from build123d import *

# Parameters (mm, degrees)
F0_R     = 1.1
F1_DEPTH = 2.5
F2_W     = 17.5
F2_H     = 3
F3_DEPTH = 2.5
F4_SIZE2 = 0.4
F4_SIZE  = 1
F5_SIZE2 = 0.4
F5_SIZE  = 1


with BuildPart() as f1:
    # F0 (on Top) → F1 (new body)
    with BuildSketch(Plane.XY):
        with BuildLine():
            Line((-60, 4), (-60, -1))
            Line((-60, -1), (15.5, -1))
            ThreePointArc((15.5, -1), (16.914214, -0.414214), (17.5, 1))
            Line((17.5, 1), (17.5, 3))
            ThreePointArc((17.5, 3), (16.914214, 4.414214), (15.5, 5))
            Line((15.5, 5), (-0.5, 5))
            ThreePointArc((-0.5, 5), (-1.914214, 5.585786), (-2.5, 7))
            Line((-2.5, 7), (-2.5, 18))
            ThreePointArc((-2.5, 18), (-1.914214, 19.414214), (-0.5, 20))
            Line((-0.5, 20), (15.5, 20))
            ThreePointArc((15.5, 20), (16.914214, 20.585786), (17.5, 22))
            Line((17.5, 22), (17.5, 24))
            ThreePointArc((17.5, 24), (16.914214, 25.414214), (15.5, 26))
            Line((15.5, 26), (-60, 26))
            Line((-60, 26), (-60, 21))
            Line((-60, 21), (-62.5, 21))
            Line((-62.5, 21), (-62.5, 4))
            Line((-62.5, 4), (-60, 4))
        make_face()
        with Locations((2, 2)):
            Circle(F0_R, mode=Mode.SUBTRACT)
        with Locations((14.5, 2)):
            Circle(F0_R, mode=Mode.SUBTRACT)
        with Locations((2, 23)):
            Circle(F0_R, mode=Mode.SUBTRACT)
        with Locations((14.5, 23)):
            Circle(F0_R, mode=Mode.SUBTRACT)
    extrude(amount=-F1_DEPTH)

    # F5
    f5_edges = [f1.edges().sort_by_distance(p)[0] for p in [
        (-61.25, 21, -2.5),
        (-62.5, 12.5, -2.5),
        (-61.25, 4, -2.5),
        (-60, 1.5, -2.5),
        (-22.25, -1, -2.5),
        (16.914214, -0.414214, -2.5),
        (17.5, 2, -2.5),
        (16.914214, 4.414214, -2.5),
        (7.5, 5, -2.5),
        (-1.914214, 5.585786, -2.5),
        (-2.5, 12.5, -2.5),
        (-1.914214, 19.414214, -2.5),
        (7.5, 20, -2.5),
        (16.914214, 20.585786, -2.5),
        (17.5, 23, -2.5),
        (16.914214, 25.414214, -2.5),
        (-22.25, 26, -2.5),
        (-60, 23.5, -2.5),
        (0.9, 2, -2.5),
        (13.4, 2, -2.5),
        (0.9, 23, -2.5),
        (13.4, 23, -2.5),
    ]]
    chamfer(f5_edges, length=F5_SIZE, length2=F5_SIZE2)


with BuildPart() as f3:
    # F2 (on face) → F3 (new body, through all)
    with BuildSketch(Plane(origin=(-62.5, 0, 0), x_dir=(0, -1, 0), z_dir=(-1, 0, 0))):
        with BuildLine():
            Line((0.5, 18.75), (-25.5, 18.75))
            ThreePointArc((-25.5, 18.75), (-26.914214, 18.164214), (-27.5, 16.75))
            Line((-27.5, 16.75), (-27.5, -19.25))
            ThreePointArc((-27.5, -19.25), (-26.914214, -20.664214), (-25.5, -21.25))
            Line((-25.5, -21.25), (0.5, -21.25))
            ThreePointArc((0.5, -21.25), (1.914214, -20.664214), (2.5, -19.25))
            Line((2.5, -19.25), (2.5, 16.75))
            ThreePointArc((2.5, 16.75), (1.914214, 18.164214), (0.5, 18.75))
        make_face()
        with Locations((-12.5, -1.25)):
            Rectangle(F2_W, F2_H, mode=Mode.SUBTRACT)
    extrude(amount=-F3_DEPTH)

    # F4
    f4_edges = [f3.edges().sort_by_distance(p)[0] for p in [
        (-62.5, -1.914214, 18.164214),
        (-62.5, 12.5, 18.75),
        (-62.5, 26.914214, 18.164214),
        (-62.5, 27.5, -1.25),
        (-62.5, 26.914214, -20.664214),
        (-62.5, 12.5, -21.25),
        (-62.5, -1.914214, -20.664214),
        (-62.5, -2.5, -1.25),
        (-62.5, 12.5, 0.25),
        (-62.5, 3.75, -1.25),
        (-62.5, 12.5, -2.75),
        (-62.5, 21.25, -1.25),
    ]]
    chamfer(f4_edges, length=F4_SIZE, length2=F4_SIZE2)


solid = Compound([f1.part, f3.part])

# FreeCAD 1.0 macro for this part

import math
import FreeCAD as App
import Part
import Sketcher
Q = App.Units.Quantity


def edges_at(feature, points):
    """Names of the edges that pass closest to the given points."""
    edges = feature.Shape.Edges
    near = lambda p: min(range(len(edges)), key=lambda i: edges[i].distToShape(Part.Vertex(*p))[0])
    return sorted({f"Edge{near(p) + 1}" for p in points})


def add_polygon(sketch, points):
    """Adds a closed chain of lines whose ends are joined by coincident constraints."""
    first, n = sketch.GeometryCount, len(points)
    for a, b in zip(points, points[1:] + points[:1]):
        sketch.addGeometry(Part.LineSegment(App.Vector(*a, 0), App.Vector(*b, 0)), False)
    for i in range(n):
        sketch.addConstraint(Sketcher.Constraint("Coincident", first + i, 2, first + (i + 1) % n, 1))

doc = App.newDocument("Part")
params = doc.addObject("Spreadsheet::Sheet", "Params")
for row, (alias, value) in enumerate([
    ("sketch1_radius", "1.999999 mm"),
    ("sketch1_diameter", "2.2 mm"),
    ("sketch1_width", "16 mm"),
    ("sketch1_height", "5 mm"),
    ("sketch1_height2", "2 mm"),
    ("pad1_length", "2.5 mm"),
    ("chamfer_size", "1 mm"),
    ("chamfer_size2", "0.4 mm"),
    ("sketch2_radius", "1.999999 mm"),
    ("sketch2_width", "26 mm"),
    ("sketch2_height", "36 mm"),
    ("sketch2_height2", "3 mm"),
    ("sketch2_width2", "17.5 mm"),
    ("pad2_length", "2.5 mm"),
    ("chamfer2_size", "1 mm"),
    ("chamfer2_size2", "0.4 mm"),
], start=1):
    params.set(f"A{row}", alias)
    params.set(f"B{row}", "=" + value)
    params.setAlias(f"B{row}", alias)

body = doc.addObject("PartDesign::Body", "Body")

# Sketch on XY plane
sketch1 = body.newObject("Sketcher::SketchObject", "Sketch")
sketch1.AttachmentSupport = (doc.getObject("XY_Plane"), [""])
sketch1.MapMode = "FlatFace"
sketch1.addGeometry(Part.LineSegment(App.Vector(-60, 4, 0), App.Vector(-60, -1, 0)), False)
sketch1.addGeometry(Part.LineSegment(App.Vector(-60, -1, 0), App.Vector(15.5, -1, 0)), False)
sketch1.addGeometry(Part.ArcOfCircle(Part.Circle(App.Vector(15.5, 1, 0), App.Vector(0, 0, 1), 2), math.radians(-90), math.radians(0)), False)
sketch1.addGeometry(Part.LineSegment(App.Vector(17.5, 1, 0), App.Vector(17.5, 3, 0)), False)
sketch1.addGeometry(Part.ArcOfCircle(Part.Circle(App.Vector(15.5, 3, 0), App.Vector(0, 0, 1), 2), math.radians(0), math.radians(90)), False)
sketch1.addGeometry(Part.LineSegment(App.Vector(15.5, 5, 0), App.Vector(-0.5, 5, 0)), False)
sketch1.addGeometry(Part.ArcOfCircle(Part.Circle(App.Vector(-0.5, 7, 0), App.Vector(0, 0, 1), 2), math.radians(180), math.radians(270)), False)
sketch1.addGeometry(Part.LineSegment(App.Vector(-2.5, 7, 0), App.Vector(-2.5, 18, 0)), False)
sketch1.addGeometry(Part.ArcOfCircle(Part.Circle(App.Vector(-0.5, 18, 0), App.Vector(0, 0, 1), 2), math.radians(90), math.radians(180)), False)
sketch1.addGeometry(Part.LineSegment(App.Vector(-0.5, 20, 0), App.Vector(15.5, 20, 0)), False)
sketch1.addGeometry(Part.ArcOfCircle(Part.Circle(App.Vector(15.5, 22, 0), App.Vector(0, 0, 1), 2), math.radians(-90), math.radians(0)), False)
sketch1.addGeometry(Part.LineSegment(App.Vector(17.5, 22, 0), App.Vector(17.5, 24, 0)), False)
sketch1.addGeometry(Part.ArcOfCircle(Part.Circle(App.Vector(15.5, 24, 0), App.Vector(0, 0, 1), 2), math.radians(0), math.radians(90)), False)
sketch1.addGeometry(Part.LineSegment(App.Vector(15.5, 26, 0), App.Vector(-60, 26, 0)), False)
sketch1.addGeometry(Part.LineSegment(App.Vector(-60, 26, 0), App.Vector(-60, 21, 0)), False)
sketch1.addGeometry(Part.LineSegment(App.Vector(-60, 21, 0), App.Vector(-62.5, 21, 0)), False)
sketch1.addGeometry(Part.LineSegment(App.Vector(-62.5, 21, 0), App.Vector(-62.5, 4, 0)), False)
sketch1.addGeometry(Part.LineSegment(App.Vector(-62.5, 4, 0), App.Vector(-60, 4, 0)), False)
sketch1.addGeometry(Part.Circle(App.Vector(2, 2, 0), App.Vector(0, 0, 1), 1.1), False)
sketch1.addGeometry(Part.Circle(App.Vector(14.5, 2, 0), App.Vector(0, 0, 1), 1.1), False)
sketch1.addGeometry(Part.Circle(App.Vector(2, 23, 0), App.Vector(0, 0, 1), 1.1), False)
sketch1.addGeometry(Part.Circle(App.Vector(14.5, 23, 0), App.Vector(0, 0, 1), 1.1), False)
sketch1.addConstraint(Sketcher.Constraint("Coincident", 0, 2, 1, 1))
sketch1.addConstraint(Sketcher.Constraint("Tangent", 1, 2, 2, 1))
sketch1.addConstraint(Sketcher.Constraint("Tangent", 2, 2, 3, 1))
sketch1.addConstraint(Sketcher.Constraint("Tangent", 3, 2, 4, 1))
sketch1.addConstraint(Sketcher.Constraint("Tangent", 4, 2, 5, 1))
sketch1.addConstraint(Sketcher.Constraint("Tangent", 5, 2, 6, 2))
sketch1.addConstraint(Sketcher.Constraint("Tangent", 6, 1, 7, 1))
sketch1.addConstraint(Sketcher.Constraint("Tangent", 7, 2, 8, 2))
sketch1.addConstraint(Sketcher.Constraint("Tangent", 8, 1, 9, 1))
sketch1.addConstraint(Sketcher.Constraint("Tangent", 9, 2, 10, 1))
sketch1.addConstraint(Sketcher.Constraint("Tangent", 10, 2, 11, 1))
sketch1.addConstraint(Sketcher.Constraint("Tangent", 11, 2, 12, 1))
sketch1.addConstraint(Sketcher.Constraint("Tangent", 12, 2, 13, 1))
sketch1.addConstraint(Sketcher.Constraint("Coincident", 13, 2, 14, 1))
sketch1.addConstraint(Sketcher.Constraint("Coincident", 14, 2, 15, 1))
sketch1.addConstraint(Sketcher.Constraint("Coincident", 15, 2, 16, 1))
sketch1.addConstraint(Sketcher.Constraint("Coincident", 16, 2, 17, 1))
sketch1.addConstraint(Sketcher.Constraint("Coincident", 17, 2, 0, 1))
sketch1.addConstraint(Sketcher.Constraint("Vertical", 0))
sketch1.addConstraint(Sketcher.Constraint("Horizontal", 1))
sketch1.addConstraint(Sketcher.Constraint("Vertical", 3))
sketch1.addConstraint(Sketcher.Constraint("Horizontal", 5))
sketch1.addConstraint(Sketcher.Constraint("Vertical", 7))
sketch1.addConstraint(Sketcher.Constraint("Horizontal", 9))
sketch1.addConstraint(Sketcher.Constraint("Vertical", 11))
sketch1.addConstraint(Sketcher.Constraint("Horizontal", 13))
sketch1.addConstraint(Sketcher.Constraint("Vertical", 14))
sketch1.addConstraint(Sketcher.Constraint("Horizontal", 15))
sketch1.addConstraint(Sketcher.Constraint("Vertical", 16))
sketch1.addConstraint(Sketcher.Constraint("Horizontal", 17))
sketch1.addConstraint(Sketcher.Constraint("Equal", 2, 4))
sketch1.addConstraint(Sketcher.Constraint("Equal", 4, 6))
sketch1.addConstraint(Sketcher.Constraint("Equal", 6, 8))
sketch1.addConstraint(Sketcher.Constraint("Equal", 8, 10))
sketch1.addConstraint(Sketcher.Constraint("Equal", 10, 12))
sketch1.addConstraint(Sketcher.Constraint("Equal", 18, 19))
sketch1.addConstraint(Sketcher.Constraint("Equal", 19, 20))
sketch1.addConstraint(Sketcher.Constraint("Equal", 20, 21))
sketch1.addConstraint(Sketcher.Constraint("Horizontal", 18, 3, 19, 3))
sketch1.addConstraint(Sketcher.Constraint("Horizontal", 20, 3, 21, 3))
sketch1.addConstraint(Sketcher.Constraint("Vertical", 4, 3, 10, 3))
sketch1.addConstraint(Sketcher.Constraint("Vertical", 18, 3, 20, 3))
sketch1.addConstraint(Sketcher.Constraint("Vertical", 19, 3, 21, 3))
sketch1.addConstraint(Sketcher.Constraint("Vertical", 0, 2, 13, 2))
sketch1.addConstraint(Sketcher.Constraint("Equal", 3, 11))
sketch1.addConstraint(Sketcher.Constraint("Equal", 0, 14))
sketch1.addConstraint(Sketcher.Constraint("Radius", 2, Q("1.999999 mm")))
sketch1.addConstraint(Sketcher.Constraint("Diameter", 18, Q("2.2 mm")))
sketch1.addConstraint(Sketcher.Constraint("DistanceX", 5, 2, 5, 1, Q("16 mm")))
sketch1.addConstraint(Sketcher.Constraint("DistanceY", 0, 2, 0, 1, Q("5 mm")))
sketch1.addConstraint(Sketcher.Constraint("DistanceY", 3, 1, 3, 2, Q("2 mm")))
sketch1.addConstraint(Sketcher.Constraint("DistanceY", 7, 1, 7, 2, Q("11 mm")))
sketch1.addConstraint(Sketcher.Constraint("DistanceX", 1, 1, 1, 2, Q("75.5 mm")))
sketch1.addConstraint(Sketcher.Constraint("DistanceX", 15, 2, 15, 1, Q("2.5 mm")))
sketch1.addConstraint(Sketcher.Constraint("DistanceY", -1, 1, 2, 3, Q("0.999999 mm")))
sketch1.addConstraint(Sketcher.Constraint("DistanceX", -1, 1, 18, 3, Q("2 mm")))
sketch1.addConstraint(Sketcher.Constraint("DistanceY", -1, 1, 18, 3, Q("2 mm")))
sketch1.addConstraint(Sketcher.Constraint("DistanceY", -1, 1, 20, 3, Q("23 mm")))
sketch1.addConstraint(Sketcher.Constraint("DistanceX", 0, 2, -1, 1, Q("60 mm")))
sketch1.addConstraint(Sketcher.Constraint("DistanceX", 19, 3, 2, 3, Q("1.000001 mm")))
sketch1.setExpression("Constraints[46]", "Params.sketch1_radius")
sketch1.setExpression("Constraints[47]", "Params.sketch1_diameter")
sketch1.setExpression("Constraints[48]", "Params.sketch1_width")
sketch1.setExpression("Constraints[49]", "Params.sketch1_height")
sketch1.setExpression("Constraints[50]", "Params.sketch1_height2")
pad1 = body.newObject("PartDesign::Pad", "Pad")
pad1.Profile = sketch1
pad1.setExpression("Length", "Params.pad1_length")
pad1.Reversed = True
doc.recompute()

chamfer = body.newObject("PartDesign::Chamfer", "Chamfer")
chamfer.Base = (pad1, edges_at(pad1, [
    (-61.25, 21, -2.5),
    (-62.5, 12.5, -2.5),
    (-61.25, 4, -2.5),
    (-60, 1.5, -2.5),
    (-22.25, -1, -2.5),
    (16.914, -0.414, -2.5),
    (17.5, 2, -2.5),
    (16.914, 4.414, -2.5),
    (7.5, 5, -2.5),
    (-1.914, 5.586, -2.5),
    (-2.5, 12.5, -2.5),
    (-1.914, 19.414, -2.5),
    (7.5, 20, -2.5),
    (16.914, 20.586, -2.5),
    (17.5, 23, -2.5),
    (16.914, 25.414, -2.5),
    (-22.25, 26, -2.5),
    (-60, 23.5, -2.5),
    (0.9, 2, -2.5),
    (13.4, 2, -2.5),
    (0.9, 23, -2.5),
    (13.4, 23, -2.5),
]))
chamfer.ChamferType = "Two distances"
chamfer.setExpression("Size", "Params.chamfer_size")
chamfer.setExpression("Size2", "Params.chamfer_size2")
body2 = doc.addObject("PartDesign::Body", "Body001")

# Sketch on YZ plane
sketch2 = body2.newObject("Sketcher::SketchObject", "Sketch001")
sketch2.AttachmentSupport = (doc.getObject("YZ_Plane001"), [""])
sketch2.MapMode = "FlatFace"
sketch2.AttachmentOffset = App.Placement(App.Vector(0, 0, -62.5), App.Rotation())
sketch2.addGeometry(Part.LineSegment(App.Vector(-0.5, 18.8, 0), App.Vector(25.5, 18.8, 0)), False)  # 0
sketch2.addGeometry(Part.ArcOfCircle(Part.Circle(App.Vector(25.5, 16.8, 0), App.Vector(0, 0, 1), 2), math.radians(0), math.radians(90)), False)  # 1
sketch2.addGeometry(Part.LineSegment(App.Vector(27.5, 16.8, 0), App.Vector(27.5, -19.2, 0)), False)  # 2
sketch2.addGeometry(Part.ArcOfCircle(Part.Circle(App.Vector(25.5, -19.3, 0), App.Vector(0, 0, 1), 2), math.radians(-90), math.radians(0)), False)  # 3
sketch2.addGeometry(Part.LineSegment(App.Vector(25.5, -21.2, 0), App.Vector(-0.5, -21.2, 0)), False)  # 4
sketch2.addGeometry(Part.ArcOfCircle(Part.Circle(App.Vector(-0.5, -19.3, 0), App.Vector(0, 0, 1), 2), math.radians(180), math.radians(270)), False)  # 5
sketch2.addGeometry(Part.LineSegment(App.Vector(-2.5, -19.2, 0), App.Vector(-2.5, 16.8, 0)), False)  # 6
sketch2.addGeometry(Part.ArcOfCircle(Part.Circle(App.Vector(-0.5, 16.8, 0), App.Vector(0, 0, 1), 2), math.radians(90), math.radians(180)), False)  # 7
add_polygon(sketch2, [(3.8, -2.8), (21.2, -2.8), (21.2, 0.2), (3.8, 0.2)])  # lines 8-11
sketch2.addConstraint(Sketcher.Constraint("Tangent", 0, 2, 1, 2))
sketch2.addConstraint(Sketcher.Constraint("Tangent", 1, 1, 2, 1))
sketch2.addConstraint(Sketcher.Constraint("Tangent", 2, 2, 3, 2))
sketch2.addConstraint(Sketcher.Constraint("Tangent", 3, 1, 4, 1))
sketch2.addConstraint(Sketcher.Constraint("Tangent", 4, 2, 5, 2))
sketch2.addConstraint(Sketcher.Constraint("Tangent", 5, 1, 6, 1))
sketch2.addConstraint(Sketcher.Constraint("Tangent", 6, 2, 7, 2))
sketch2.addConstraint(Sketcher.Constraint("Tangent", 7, 1, 0, 1))
sketch2.addConstraint(Sketcher.Constraint("Horizontal", 0))
sketch2.addConstraint(Sketcher.Constraint("Vertical", 2))
sketch2.addConstraint(Sketcher.Constraint("Horizontal", 4))
sketch2.addConstraint(Sketcher.Constraint("Vertical", 6))
sketch2.addConstraint(Sketcher.Constraint("Horizontal", 8))
sketch2.addConstraint(Sketcher.Constraint("Vertical", 9))
sketch2.addConstraint(Sketcher.Constraint("Horizontal", 10))
sketch2.addConstraint(Sketcher.Constraint("Vertical", 11))
sketch2.addConstraint(Sketcher.Constraint("Equal", 1, 3))
sketch2.addConstraint(Sketcher.Constraint("Equal", 3, 5))
sketch2.addConstraint(Sketcher.Constraint("Equal", 5, 7))
sketch2.addConstraint(Sketcher.Constraint("Radius", 1, Q("1.999999 mm")))
sketch2.addConstraint(Sketcher.Constraint("DistanceX", 0, 1, 0, 2, Q("26 mm")))
sketch2.addConstraint(Sketcher.Constraint("DistanceY", 2, 2, 2, 1, Q("36 mm")))
sketch2.addConstraint(Sketcher.Constraint("DistanceY", 9, 1, 9, 2, Q("3 mm")))
sketch2.addConstraint(Sketcher.Constraint("DistanceX", 8, 1, 8, 2, Q("17.5 mm")))
sketch2.addConstraint(Sketcher.Constraint("DistanceX", -1, 1, 1, 3, Q("25.500001 mm")))
sketch2.addConstraint(Sketcher.Constraint("DistanceY", 3, 3, 8, 2, Q("16.500001 mm")))
sketch2.addConstraint(Sketcher.Constraint("DistanceY", -1, 1, 1, 3, Q("16.750001 mm")))
sketch2.addConstraint(Sketcher.Constraint("DistanceX", -1, 1, 8, 2, Q("21.25 mm")))
sketch2.setExpression("Constraints[23]", "Params.sketch2_radius")
sketch2.setExpression("Constraints[24]", "Params.sketch2_width")
sketch2.setExpression("Constraints[25]", "Params.sketch2_height")
sketch2.setExpression("Constraints[26]", "Params.sketch2_height2")
sketch2.setExpression("Constraints[27]", "Params.sketch2_width2")
pad2 = body2.newObject("PartDesign::Pad", "Pad001")
pad2.Profile = sketch2
pad2.setExpression("Length", "Params.pad2_length")
doc.recompute()

chamfer2 = body2.newObject("PartDesign::Chamfer", "Chamfer001")
chamfer2.Base = (pad2, edges_at(pad2, [
    (-62.5, -1.914, 18.164),
    (-62.5, 12.5, 18.75),
    (-62.5, 26.914, 18.164),
    (-62.5, 27.5, -1.25),
    (-62.5, 26.914, -20.664),
    (-62.5, 12.5, -21.25),
    (-62.5, -1.914, -20.664),
    (-62.5, -2.5, -1.25),
    (-62.5, 12.5, 0.25),
    (-62.5, 3.75, -1.25),
    (-62.5, 12.5, -2.75),
    (-62.5, 21.25, -1.25),
]))
chamfer2.ChamferType = "Two distances"
chamfer2.setExpression("Size", "Params.chamfer2_size")
chamfer2.setExpression("Size2", "Params.chamfer2_size2")

doc.recompute()
